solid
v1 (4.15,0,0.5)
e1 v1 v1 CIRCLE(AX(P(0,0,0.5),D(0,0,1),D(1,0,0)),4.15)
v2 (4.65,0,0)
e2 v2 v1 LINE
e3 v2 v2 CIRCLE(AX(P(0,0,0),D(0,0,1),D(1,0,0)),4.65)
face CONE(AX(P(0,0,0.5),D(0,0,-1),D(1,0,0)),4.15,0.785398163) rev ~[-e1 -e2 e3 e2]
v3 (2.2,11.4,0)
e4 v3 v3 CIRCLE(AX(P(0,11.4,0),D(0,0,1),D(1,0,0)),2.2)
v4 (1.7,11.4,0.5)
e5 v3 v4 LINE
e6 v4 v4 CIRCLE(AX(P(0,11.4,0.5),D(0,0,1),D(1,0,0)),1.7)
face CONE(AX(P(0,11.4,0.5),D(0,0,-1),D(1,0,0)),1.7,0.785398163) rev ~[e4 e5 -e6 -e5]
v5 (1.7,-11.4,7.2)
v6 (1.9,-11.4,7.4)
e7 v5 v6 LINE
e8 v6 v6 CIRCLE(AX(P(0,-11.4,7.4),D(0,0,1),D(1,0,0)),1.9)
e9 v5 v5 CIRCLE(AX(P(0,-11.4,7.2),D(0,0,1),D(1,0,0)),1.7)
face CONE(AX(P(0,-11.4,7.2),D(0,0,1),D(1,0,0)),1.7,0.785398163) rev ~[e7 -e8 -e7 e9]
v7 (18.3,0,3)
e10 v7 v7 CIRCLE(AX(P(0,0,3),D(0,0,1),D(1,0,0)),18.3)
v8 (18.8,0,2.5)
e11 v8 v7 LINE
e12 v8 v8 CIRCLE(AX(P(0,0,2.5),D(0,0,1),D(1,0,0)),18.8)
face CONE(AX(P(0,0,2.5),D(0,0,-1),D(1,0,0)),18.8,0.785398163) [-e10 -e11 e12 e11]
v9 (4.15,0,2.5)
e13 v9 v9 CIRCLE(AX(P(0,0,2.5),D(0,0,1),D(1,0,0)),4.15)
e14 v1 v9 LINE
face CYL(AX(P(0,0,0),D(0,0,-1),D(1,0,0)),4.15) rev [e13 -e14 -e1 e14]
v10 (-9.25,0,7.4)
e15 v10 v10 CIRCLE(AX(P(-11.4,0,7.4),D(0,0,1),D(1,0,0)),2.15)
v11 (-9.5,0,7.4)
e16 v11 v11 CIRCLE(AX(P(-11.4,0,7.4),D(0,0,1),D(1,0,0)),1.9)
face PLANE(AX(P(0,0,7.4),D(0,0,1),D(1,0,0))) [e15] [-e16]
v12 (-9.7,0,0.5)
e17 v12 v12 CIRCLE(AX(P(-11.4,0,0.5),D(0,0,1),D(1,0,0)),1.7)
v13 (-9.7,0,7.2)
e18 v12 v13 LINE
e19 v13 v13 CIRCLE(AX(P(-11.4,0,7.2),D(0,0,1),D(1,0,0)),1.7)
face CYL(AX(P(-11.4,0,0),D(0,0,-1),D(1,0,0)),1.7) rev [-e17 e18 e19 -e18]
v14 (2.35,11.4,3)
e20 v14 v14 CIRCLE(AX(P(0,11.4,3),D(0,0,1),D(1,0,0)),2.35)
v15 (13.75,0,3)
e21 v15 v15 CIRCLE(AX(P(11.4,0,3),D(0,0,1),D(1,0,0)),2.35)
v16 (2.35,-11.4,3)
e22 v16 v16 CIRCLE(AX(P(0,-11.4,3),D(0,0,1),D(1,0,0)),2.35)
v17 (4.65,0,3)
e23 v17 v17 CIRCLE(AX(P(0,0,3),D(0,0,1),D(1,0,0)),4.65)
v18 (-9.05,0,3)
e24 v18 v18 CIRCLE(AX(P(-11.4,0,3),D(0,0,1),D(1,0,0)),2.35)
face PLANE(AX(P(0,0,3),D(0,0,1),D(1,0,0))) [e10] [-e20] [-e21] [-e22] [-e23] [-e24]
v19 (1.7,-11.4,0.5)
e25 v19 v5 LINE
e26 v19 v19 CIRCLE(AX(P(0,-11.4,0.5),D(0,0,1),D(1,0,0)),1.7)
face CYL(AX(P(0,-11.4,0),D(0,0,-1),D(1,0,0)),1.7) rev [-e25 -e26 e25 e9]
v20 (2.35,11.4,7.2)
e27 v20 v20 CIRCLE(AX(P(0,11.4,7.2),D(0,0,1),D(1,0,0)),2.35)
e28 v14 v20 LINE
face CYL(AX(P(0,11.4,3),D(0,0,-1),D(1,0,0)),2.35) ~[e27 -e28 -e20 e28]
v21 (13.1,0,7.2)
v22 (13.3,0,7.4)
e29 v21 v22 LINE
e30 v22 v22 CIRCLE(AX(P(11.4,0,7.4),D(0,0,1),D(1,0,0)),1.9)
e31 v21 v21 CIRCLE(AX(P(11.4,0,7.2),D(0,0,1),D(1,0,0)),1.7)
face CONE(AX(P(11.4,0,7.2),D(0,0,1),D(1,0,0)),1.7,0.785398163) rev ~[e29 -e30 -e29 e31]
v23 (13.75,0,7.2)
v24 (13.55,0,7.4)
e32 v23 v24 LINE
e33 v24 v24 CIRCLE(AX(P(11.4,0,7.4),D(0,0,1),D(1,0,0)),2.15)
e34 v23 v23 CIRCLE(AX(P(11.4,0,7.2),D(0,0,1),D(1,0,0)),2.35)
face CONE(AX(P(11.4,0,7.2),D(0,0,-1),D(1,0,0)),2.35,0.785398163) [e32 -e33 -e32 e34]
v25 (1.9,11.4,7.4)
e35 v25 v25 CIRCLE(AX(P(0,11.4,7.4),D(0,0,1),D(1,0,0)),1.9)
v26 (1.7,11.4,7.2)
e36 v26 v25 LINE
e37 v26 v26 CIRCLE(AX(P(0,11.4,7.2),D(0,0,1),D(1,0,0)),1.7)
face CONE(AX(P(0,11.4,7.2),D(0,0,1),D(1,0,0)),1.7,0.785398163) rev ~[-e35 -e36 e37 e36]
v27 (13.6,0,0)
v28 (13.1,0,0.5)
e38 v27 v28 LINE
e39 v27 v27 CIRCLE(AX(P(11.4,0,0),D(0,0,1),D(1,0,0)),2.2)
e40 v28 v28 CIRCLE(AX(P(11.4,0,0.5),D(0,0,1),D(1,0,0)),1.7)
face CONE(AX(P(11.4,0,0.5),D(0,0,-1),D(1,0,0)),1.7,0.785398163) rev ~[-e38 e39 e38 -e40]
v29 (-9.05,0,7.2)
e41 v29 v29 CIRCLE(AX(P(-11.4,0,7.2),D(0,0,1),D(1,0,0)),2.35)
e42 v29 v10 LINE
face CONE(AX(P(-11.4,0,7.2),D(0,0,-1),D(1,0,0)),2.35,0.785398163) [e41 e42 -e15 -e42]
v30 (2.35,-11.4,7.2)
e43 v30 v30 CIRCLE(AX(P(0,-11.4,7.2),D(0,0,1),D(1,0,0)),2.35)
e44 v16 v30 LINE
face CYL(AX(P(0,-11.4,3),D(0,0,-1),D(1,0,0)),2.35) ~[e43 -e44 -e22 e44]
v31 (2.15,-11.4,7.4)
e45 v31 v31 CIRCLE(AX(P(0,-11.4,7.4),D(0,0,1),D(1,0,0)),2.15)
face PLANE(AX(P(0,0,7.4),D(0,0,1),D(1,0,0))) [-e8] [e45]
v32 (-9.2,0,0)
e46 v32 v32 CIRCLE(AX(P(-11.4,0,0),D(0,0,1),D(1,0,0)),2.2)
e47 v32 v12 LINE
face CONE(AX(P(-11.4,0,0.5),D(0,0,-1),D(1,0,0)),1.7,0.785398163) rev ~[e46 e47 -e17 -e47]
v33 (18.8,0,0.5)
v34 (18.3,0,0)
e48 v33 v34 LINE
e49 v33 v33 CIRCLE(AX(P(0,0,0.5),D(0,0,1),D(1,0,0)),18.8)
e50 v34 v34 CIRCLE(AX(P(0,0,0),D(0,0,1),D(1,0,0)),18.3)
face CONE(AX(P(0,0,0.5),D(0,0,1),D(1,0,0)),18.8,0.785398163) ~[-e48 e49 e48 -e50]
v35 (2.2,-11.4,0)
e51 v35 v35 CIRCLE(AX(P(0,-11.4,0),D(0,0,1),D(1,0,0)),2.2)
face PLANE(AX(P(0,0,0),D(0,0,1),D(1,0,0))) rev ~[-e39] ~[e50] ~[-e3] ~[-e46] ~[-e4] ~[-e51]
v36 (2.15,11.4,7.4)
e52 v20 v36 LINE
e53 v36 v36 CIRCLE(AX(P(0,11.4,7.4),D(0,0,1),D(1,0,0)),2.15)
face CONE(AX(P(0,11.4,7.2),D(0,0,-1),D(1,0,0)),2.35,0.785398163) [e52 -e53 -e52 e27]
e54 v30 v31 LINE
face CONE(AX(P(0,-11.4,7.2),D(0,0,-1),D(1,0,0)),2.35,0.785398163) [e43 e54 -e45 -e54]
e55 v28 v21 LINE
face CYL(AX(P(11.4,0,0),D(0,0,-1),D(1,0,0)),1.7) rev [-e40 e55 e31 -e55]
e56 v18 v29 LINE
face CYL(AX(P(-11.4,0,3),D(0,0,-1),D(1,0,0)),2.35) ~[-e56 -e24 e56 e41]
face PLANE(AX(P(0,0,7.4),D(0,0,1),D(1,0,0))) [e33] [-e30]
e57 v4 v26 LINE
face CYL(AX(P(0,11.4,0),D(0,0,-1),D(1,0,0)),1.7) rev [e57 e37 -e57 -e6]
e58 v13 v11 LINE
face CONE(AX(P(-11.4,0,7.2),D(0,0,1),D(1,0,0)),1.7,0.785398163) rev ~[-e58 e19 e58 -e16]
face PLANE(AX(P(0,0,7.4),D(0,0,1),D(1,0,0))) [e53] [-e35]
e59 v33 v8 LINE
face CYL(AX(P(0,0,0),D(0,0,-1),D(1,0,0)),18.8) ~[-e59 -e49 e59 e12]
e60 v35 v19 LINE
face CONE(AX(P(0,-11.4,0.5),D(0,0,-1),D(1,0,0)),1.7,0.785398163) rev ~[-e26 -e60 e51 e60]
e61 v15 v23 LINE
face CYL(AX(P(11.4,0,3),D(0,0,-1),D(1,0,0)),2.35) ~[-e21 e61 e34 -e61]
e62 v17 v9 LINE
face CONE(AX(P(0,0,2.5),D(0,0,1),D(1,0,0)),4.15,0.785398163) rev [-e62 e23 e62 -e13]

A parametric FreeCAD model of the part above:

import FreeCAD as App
import Part
import Sketcher
from FreeCAD import Vector


def edges_at(feature, points):
    """Names of the edges that pass closest to the given points."""
    edges = feature.Shape.Edges
    near = lambda p: min(range(len(edges)), key=lambda i: edges[i].distToShape(Part.Vertex(*p))[0])
    return sorted({f"Edge{near(p) + 1}" for p in points})

doc = App.newDocument("Part")
body = doc.addObject("PartDesign::Body", "Body")

sketch1 = body.newObject("Sketcher::SketchObject", "Sketch")
sketch1.AttachmentSupport = (doc.getObject("XY_Plane"), [""])
sketch1.MapMode = "FlatFace"
sketch1.addGeometry([
    Part.Circle(Vector(0, 0, 0), Vector(0, 0, 1), 18.8),
    Part.Circle(Vector(0, -11.4, 0), Vector(0, 0, 1), 1.7),
    Part.Circle(Vector(-11.4, 0, 0), Vector(0, 0, 1), 1.7),
    Part.Circle(Vector(0, 0, 0), Vector(0, 0, 1), 4.15),
    Part.Circle(Vector(11.4, 0, 0), Vector(0, 0, 1), 1.7),
    Part.Circle(Vector(0, 11.4, 0), Vector(0, 0, 1), 1.7),
], False)
sketch1.addConstraint([
    Sketcher.Constraint("Coincident", 0, 3, -1, 1),
    Sketcher.Constraint("Coincident", 3, 3, -1, 1),
    Sketcher.Constraint("Equal", 1, 2),
    Sketcher.Constraint("Equal", 2, 4),
    Sketcher.Constraint("Equal", 4, 5),
    Sketcher.Constraint("Symmetric", 2, 3, 4, 3, -1, 1),
    Sketcher.Constraint("Symmetric", 1, 3, 5, 3, -1, 1),
    Sketcher.Constraint("PointOnObject", 1, 3, -2),
    Sketcher.Constraint("PointOnObject", 2, 3, -1),
    Sketcher.Constraint("Diameter", 0, 37.6),
    Sketcher.Constraint("Diameter", 1, 3.4),
    Sketcher.Constraint("Diameter", 3, 8.3),
    Sketcher.Constraint("DistanceY", 1, 3, -1, 1, 11.4),
    Sketcher.Constraint("DistanceX", 2, 3, -1, 1, 11.4),
])
pad1 = body.newObject("PartDesign::Pad", "Pad")
pad1.Profile = sketch1
pad1.Length = 3

sketch2 = body.newObject("Sketcher::SketchObject", "Sketch001")
sketch2.AttachmentSupport = (doc.getObject("XY_Plane"), [""])
sketch2.MapMode = "FlatFace"
sketch2.AttachmentOffset = App.Placement(Vector(0, 0, 3), App.Rotation())
sketch2.addGeometry([
    Part.Circle(Vector(11.4, 0, 0), Vector(0, 0, 1), 2.35),
    Part.Circle(Vector(11.4, 0, 0), Vector(0, 0, 1), 1.7),
    Part.Circle(Vector(0, 11.4, 0), Vector(0, 0, 1), 2.35),
    Part.Circle(Vector(0, 11.4, 0), Vector(0, 0, 1), 1.7),
    Part.Circle(Vector(-11.4, 0, 0), Vector(0, 0, 1), 2.35),
    Part.Circle(Vector(-11.4, 0, 0), Vector(0, 0, 1), 1.7),
    Part.Circle(Vector(0, -11.4, 0), Vector(0, 0, 1), 2.35),
    Part.Circle(Vector(0, -11.4, 0), Vector(0, 0, 1), 1.7),
], False)
sketch2.addConstraint([
    Sketcher.Constraint("Coincident", 1, 3, 0, 3),
    Sketcher.Constraint("Coincident", 3, 3, 2, 3),
    Sketcher.Constraint("Coincident", 5, 3, 4, 3),
    Sketcher.Constraint("Coincident", 7, 3, 6, 3),
    Sketcher.Constraint("Equal", 0, 2),
    Sketcher.Constraint("Equal", 1, 3),
    Sketcher.Constraint("Equal", 2, 4),
    Sketcher.Constraint("Equal", 3, 5),
    Sketcher.Constraint("Equal", 4, 6),
    Sketcher.Constraint("Equal", 5, 7),
    Sketcher.Constraint("Symmetric", 0, 3, 4, 3, -1, 1),
    Sketcher.Constraint("Symmetric", 2, 3, 6, 3, -1, 1),
    Sketcher.Constraint("PointOnObject", 0, 3, -1),
    Sketcher.Constraint("PointOnObject", 2, 3, -2),
    Sketcher.Constraint("Diameter", 0, 4.7),
    Sketcher.Constraint("Diameter", 1, 3.4),
    Sketcher.Constraint("DistanceX", -1, 1, 0, 3, 11.4),
    Sketcher.Constraint("DistanceY", -1, 1, 2, 3, 11.4),
])
pad2 = body.newObject("PartDesign::Pad", "Pad001")
pad2.Profile = sketch2
pad2.Length = 4.4
doc.recompute()

chamfer = body.newObject("PartDesign::Chamfer", "Chamfer")
chamfer.Base = (pad2, edges_at(pad2, [
    (-18.8, 0, 3),
    (-18.8, 0, 0),
    (-4.15, 0, 3),
    (-4.15, 0, 0),
    (-1.7, -11.4, 0),
    (9.7, 0, 0),
    (-1.7, 11.4, 0),
    (-13.1, 0, 0),
]))
chamfer.Size = 0.5
doc.recompute()

chamfer2 = body.newObject("PartDesign::Chamfer", "Chamfer001")
chamfer2.Base = (chamfer, edges_at(chamfer, [
    (-13.75, 0, 7.4),
    (-13.1, 0, 7.4),
    (-1.7, 11.4, 7.4),
    (-2.35, 11.4, 7.4),
    (9.7, 0, 7.4),
    (9.05, 0, 7.4),
    (-1.7, -11.4, 7.4),
    (-2.35, -11.4, 7.4),
]))
chamfer2.Size = 0.2

doc.recompute()
